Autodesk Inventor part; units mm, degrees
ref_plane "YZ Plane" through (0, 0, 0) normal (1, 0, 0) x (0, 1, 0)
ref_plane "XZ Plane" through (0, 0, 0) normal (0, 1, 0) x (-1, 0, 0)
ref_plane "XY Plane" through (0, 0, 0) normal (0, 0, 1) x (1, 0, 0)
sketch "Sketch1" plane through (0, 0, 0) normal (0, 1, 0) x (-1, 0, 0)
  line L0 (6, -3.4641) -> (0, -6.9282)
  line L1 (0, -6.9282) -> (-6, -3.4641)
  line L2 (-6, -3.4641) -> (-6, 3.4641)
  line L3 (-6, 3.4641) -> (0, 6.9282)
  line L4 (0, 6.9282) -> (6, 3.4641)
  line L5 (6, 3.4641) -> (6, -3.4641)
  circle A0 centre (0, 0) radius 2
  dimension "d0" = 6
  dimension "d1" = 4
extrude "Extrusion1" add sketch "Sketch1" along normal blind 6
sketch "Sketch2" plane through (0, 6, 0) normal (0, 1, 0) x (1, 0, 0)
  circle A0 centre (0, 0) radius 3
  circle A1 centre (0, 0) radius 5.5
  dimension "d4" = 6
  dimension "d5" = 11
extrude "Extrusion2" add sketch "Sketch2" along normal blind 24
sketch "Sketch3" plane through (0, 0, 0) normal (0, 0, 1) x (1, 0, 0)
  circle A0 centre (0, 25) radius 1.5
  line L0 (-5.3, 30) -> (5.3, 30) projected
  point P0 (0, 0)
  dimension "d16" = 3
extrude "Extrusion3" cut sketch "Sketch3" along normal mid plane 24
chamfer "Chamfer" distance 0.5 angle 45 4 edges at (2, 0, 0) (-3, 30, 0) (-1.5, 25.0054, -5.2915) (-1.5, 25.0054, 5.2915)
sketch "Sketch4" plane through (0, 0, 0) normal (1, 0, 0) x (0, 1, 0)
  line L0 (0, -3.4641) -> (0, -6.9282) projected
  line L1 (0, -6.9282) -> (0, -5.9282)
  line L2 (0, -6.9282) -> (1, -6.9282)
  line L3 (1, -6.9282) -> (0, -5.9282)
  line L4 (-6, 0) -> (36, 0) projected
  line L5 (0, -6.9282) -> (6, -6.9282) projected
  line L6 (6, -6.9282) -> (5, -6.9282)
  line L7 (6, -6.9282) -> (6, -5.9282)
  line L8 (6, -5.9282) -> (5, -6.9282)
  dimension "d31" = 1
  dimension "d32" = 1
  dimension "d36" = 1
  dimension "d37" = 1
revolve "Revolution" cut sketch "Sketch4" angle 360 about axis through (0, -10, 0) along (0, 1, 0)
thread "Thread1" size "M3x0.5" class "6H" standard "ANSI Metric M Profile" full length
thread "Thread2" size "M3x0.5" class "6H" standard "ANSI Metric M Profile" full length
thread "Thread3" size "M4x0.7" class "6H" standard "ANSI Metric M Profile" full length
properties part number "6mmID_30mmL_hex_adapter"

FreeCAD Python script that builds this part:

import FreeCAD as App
import Part
import Sketcher
Q = App.Units.Quantity


def edges_at(feature, points):
    """Names of the edges that pass closest to the given points."""
    edges = feature.Shape.Edges
    near = lambda p: min(range(len(edges)), key=lambda i: edges[i].distToShape(Part.Vertex(*p))[0])
    return sorted({f"Edge{near(p) + 1}" for p in points})


def add_polygon(sketch, points):
    """Adds a closed chain of lines whose ends are joined by coincident constraints."""
    first, n = sketch.GeometryCount, len(points)
    for a, b in zip(points, points[1:] + points[:1]):
        sketch.addGeometry(Part.LineSegment(App.Vector(*a, 0), App.Vector(*b, 0)), False)
    for i in range(n):
        sketch.addConstraint(Sketcher.Constraint("Coincident", first + i, 2, first + (i + 1) % n, 1))

doc = App.newDocument("Part")
params = doc.addObject("Spreadsheet::Sheet", "Params")
for row, (alias, value) in enumerate([
    ("sketch1_diameter", "4 mm"),
    ("pad1_length", "6 mm"),
    ("sketch2_diameter", "11 mm"),
    ("sketch2_diameter2", "6 mm"),
    ("pad2_length", "24 mm"),
    ("sketch3_diameter", "3 mm"),
    ("pocket1_length", "24 mm"),
    ("chamfer_size", "0.5 mm"),
    ("sketch4_width", "1 mm"),
    ("groove_angle", "360 deg"),
], start=1):
    params.set(f"A{row}", alias)
    params.set(f"B{row}", "=" + value)
    params.setAlias(f"B{row}", alias)

body = doc.addObject("PartDesign::Body", "Body")

sketch1 = body.newObject("Sketcher::SketchObject", "Sketch")
sketch1.AttachmentSupport = (doc.getObject("XZ_Plane"), [""])
sketch1.MapMode = "FlatFace"
add_polygon(sketch1, [(0, -6.9), (-6, -3.5), (-6, 3.5), (0, 6.9), (6, 3.5), (6, -3.5)])
sketch1.addGeometry(Part.Circle(App.Vector(0, 0, 0), App.Vector(0, 0, 1), 2), False)
sketch1.addConstraint([
    Sketcher.Constraint("Vertical", 1),
    Sketcher.Constraint("Vertical", 4),
    Sketcher.Constraint("Coincident", 6, 3, -1, 1),
    Sketcher.Constraint("Symmetric", 0, 2, 3, 2, -1, 1),
    Sketcher.Constraint("Symmetric", 2, 2, 5, 2, -1, 1),
    Sketcher.Constraint("PointOnObject", 2, 2, -2),
    Sketcher.Constraint("Parallel", 2, 5),
    Sketcher.Constraint("Horizontal", 1, 2, 3, 2),
    Sketcher.Constraint("Diameter", 6, Q("4 mm")),
    Sketcher.Constraint("DistanceX", 0, 2, -1, 1, Q("6 mm")),
    Sketcher.Constraint("Angle", 0, Q("150 deg")),
    Sketcher.Constraint("DistanceY", 1, 1, 1, 2, Q("6.9282 mm")),
])
sketch1.setExpression("Constraints[14]", "Params.sketch1_diameter")
pad1 = body.newObject("PartDesign::Pad", "Pad")
pad1.Profile = sketch1
pad1.setExpression("Length", "Params.pad1_length")
pad1.Reversed = True

sketch2 = body.newObject("Sketcher::SketchObject", "Sketch001")
sketch2.AttachmentSupport = (doc.getObject("XZ_Plane"), [""])
sketch2.MapMode = "FlatFace"
sketch2.AttachmentOffset = App.Placement(App.Vector(0, 0, -6), App.Rotation())
sketch2.addGeometry([
    Part.Circle(App.Vector(0, 0, 0), App.Vector(0, 0, 1), 5.5),
    Part.Circle(App.Vector(0, 0, 0), App.Vector(0, 0, 1), 3),
], False)
sketch2.addConstraint([
    Sketcher.Constraint("Coincident", 0, 3, -1, 1),
    Sketcher.Constraint("Coincident", 1, 3, -1, 1),
    Sketcher.Constraint("Diameter", 0, Q("11 mm")),
    Sketcher.Constraint("Diameter", 1, Q("6 mm")),
])
sketch2.setExpression("Constraints[2]", "Params.sketch2_diameter")
sketch2.setExpression("Constraints[3]", "Params.sketch2_diameter2")
pad2 = body.newObject("PartDesign::Pad", "Pad001")
pad2.Profile = sketch2
pad2.setExpression("Length", "Params.pad2_length")
pad2.Reversed = True

sketch3 = body.newObject("Sketcher::SketchObject", "Sketch002")
sketch3.AttachmentSupport = (doc.getObject("XY_Plane"), [""])
sketch3.MapMode = "FlatFace"
sketch3.addGeometry(Part.Circle(App.Vector(0, 25, 0), App.Vector(0, 0, 1), 1.5), False)
sketch3.addConstraint([
    Sketcher.Constraint("PointOnObject", 0, 3, -2),
    Sketcher.Constraint("Diameter", 0, Q("3 mm")),
    Sketcher.Constraint("DistanceY", -1, 1, 0, 3, Q("25 mm")),
])
sketch3.setExpression("Constraints[1]", "Params.sketch3_diameter")
pocket1 = body.newObject("PartDesign::Pocket", "Pocket")
pocket1.Profile = sketch3
pocket1.setExpression("Length", "Params.pocket1_length")
pocket1.Midplane = True
doc.recompute()

chamfer = body.newObject("PartDesign::Chamfer", "Chamfer")
chamfer.Base = (pocket1, edges_at(pocket1, [
    (2, 0, 0),
    (-3, 30, 0),
    (-1.5, 25.005, -5.292),
    (-1.5, 25.005, 5.292),
]))
chamfer.setExpression("Size", "Params.chamfer_size")

sketch4 = body.newObject("Sketcher::SketchObject", "Sketch003")
sketch4.AttachmentSupport = (doc.getObject("YZ_Plane"), [""])
sketch4.MapMode = "FlatFace"
add_polygon(sketch4, [(1, -6.9), (0, -5.9), (0, -6.9)])
add_polygon(sketch4, [(6, -5.9), (5, -6.9), (6, -6.9)])
sketch4.addConstraint([
    Sketcher.Constraint("Vertical", 1),
    Sketcher.Constraint("Horizontal", 2),
    Sketcher.Constraint("Horizontal", 4),
    Sketcher.Constraint("Vertical", 5),
    Sketcher.Constraint("PointOnObject", 0, 2, -2),
    Sketcher.Constraint("Perpendicular", 0, 3),
    Sketcher.Constraint("Horizontal", 2, 2, 3, 2),
    Sketcher.Constraint("Horizontal", 0, 2, 5, 2),
    Sketcher.Constraint("Equal", 2, 4),
    Sketcher.Constraint("DistanceX", 2, 1, 2, 2, Q("1 mm")),
    Sketcher.Constraint("DistanceX", -1, 1, 3, 2, Q("5 mm")),
    Sketcher.Constraint("DistanceY", 0, 2, -1, 1, Q("5.9282 mm")),
])
sketch4.setExpression("Constraints[15]", "Params.sketch4_width")
groove = body.newObject("PartDesign::Groove", "Groove")
groove.Profile = sketch4
groove.ReferenceAxis = (sketch4, ["H_Axis"])
groove.setExpression("Angle", "Params.groove_angle")

doc.recompute()
